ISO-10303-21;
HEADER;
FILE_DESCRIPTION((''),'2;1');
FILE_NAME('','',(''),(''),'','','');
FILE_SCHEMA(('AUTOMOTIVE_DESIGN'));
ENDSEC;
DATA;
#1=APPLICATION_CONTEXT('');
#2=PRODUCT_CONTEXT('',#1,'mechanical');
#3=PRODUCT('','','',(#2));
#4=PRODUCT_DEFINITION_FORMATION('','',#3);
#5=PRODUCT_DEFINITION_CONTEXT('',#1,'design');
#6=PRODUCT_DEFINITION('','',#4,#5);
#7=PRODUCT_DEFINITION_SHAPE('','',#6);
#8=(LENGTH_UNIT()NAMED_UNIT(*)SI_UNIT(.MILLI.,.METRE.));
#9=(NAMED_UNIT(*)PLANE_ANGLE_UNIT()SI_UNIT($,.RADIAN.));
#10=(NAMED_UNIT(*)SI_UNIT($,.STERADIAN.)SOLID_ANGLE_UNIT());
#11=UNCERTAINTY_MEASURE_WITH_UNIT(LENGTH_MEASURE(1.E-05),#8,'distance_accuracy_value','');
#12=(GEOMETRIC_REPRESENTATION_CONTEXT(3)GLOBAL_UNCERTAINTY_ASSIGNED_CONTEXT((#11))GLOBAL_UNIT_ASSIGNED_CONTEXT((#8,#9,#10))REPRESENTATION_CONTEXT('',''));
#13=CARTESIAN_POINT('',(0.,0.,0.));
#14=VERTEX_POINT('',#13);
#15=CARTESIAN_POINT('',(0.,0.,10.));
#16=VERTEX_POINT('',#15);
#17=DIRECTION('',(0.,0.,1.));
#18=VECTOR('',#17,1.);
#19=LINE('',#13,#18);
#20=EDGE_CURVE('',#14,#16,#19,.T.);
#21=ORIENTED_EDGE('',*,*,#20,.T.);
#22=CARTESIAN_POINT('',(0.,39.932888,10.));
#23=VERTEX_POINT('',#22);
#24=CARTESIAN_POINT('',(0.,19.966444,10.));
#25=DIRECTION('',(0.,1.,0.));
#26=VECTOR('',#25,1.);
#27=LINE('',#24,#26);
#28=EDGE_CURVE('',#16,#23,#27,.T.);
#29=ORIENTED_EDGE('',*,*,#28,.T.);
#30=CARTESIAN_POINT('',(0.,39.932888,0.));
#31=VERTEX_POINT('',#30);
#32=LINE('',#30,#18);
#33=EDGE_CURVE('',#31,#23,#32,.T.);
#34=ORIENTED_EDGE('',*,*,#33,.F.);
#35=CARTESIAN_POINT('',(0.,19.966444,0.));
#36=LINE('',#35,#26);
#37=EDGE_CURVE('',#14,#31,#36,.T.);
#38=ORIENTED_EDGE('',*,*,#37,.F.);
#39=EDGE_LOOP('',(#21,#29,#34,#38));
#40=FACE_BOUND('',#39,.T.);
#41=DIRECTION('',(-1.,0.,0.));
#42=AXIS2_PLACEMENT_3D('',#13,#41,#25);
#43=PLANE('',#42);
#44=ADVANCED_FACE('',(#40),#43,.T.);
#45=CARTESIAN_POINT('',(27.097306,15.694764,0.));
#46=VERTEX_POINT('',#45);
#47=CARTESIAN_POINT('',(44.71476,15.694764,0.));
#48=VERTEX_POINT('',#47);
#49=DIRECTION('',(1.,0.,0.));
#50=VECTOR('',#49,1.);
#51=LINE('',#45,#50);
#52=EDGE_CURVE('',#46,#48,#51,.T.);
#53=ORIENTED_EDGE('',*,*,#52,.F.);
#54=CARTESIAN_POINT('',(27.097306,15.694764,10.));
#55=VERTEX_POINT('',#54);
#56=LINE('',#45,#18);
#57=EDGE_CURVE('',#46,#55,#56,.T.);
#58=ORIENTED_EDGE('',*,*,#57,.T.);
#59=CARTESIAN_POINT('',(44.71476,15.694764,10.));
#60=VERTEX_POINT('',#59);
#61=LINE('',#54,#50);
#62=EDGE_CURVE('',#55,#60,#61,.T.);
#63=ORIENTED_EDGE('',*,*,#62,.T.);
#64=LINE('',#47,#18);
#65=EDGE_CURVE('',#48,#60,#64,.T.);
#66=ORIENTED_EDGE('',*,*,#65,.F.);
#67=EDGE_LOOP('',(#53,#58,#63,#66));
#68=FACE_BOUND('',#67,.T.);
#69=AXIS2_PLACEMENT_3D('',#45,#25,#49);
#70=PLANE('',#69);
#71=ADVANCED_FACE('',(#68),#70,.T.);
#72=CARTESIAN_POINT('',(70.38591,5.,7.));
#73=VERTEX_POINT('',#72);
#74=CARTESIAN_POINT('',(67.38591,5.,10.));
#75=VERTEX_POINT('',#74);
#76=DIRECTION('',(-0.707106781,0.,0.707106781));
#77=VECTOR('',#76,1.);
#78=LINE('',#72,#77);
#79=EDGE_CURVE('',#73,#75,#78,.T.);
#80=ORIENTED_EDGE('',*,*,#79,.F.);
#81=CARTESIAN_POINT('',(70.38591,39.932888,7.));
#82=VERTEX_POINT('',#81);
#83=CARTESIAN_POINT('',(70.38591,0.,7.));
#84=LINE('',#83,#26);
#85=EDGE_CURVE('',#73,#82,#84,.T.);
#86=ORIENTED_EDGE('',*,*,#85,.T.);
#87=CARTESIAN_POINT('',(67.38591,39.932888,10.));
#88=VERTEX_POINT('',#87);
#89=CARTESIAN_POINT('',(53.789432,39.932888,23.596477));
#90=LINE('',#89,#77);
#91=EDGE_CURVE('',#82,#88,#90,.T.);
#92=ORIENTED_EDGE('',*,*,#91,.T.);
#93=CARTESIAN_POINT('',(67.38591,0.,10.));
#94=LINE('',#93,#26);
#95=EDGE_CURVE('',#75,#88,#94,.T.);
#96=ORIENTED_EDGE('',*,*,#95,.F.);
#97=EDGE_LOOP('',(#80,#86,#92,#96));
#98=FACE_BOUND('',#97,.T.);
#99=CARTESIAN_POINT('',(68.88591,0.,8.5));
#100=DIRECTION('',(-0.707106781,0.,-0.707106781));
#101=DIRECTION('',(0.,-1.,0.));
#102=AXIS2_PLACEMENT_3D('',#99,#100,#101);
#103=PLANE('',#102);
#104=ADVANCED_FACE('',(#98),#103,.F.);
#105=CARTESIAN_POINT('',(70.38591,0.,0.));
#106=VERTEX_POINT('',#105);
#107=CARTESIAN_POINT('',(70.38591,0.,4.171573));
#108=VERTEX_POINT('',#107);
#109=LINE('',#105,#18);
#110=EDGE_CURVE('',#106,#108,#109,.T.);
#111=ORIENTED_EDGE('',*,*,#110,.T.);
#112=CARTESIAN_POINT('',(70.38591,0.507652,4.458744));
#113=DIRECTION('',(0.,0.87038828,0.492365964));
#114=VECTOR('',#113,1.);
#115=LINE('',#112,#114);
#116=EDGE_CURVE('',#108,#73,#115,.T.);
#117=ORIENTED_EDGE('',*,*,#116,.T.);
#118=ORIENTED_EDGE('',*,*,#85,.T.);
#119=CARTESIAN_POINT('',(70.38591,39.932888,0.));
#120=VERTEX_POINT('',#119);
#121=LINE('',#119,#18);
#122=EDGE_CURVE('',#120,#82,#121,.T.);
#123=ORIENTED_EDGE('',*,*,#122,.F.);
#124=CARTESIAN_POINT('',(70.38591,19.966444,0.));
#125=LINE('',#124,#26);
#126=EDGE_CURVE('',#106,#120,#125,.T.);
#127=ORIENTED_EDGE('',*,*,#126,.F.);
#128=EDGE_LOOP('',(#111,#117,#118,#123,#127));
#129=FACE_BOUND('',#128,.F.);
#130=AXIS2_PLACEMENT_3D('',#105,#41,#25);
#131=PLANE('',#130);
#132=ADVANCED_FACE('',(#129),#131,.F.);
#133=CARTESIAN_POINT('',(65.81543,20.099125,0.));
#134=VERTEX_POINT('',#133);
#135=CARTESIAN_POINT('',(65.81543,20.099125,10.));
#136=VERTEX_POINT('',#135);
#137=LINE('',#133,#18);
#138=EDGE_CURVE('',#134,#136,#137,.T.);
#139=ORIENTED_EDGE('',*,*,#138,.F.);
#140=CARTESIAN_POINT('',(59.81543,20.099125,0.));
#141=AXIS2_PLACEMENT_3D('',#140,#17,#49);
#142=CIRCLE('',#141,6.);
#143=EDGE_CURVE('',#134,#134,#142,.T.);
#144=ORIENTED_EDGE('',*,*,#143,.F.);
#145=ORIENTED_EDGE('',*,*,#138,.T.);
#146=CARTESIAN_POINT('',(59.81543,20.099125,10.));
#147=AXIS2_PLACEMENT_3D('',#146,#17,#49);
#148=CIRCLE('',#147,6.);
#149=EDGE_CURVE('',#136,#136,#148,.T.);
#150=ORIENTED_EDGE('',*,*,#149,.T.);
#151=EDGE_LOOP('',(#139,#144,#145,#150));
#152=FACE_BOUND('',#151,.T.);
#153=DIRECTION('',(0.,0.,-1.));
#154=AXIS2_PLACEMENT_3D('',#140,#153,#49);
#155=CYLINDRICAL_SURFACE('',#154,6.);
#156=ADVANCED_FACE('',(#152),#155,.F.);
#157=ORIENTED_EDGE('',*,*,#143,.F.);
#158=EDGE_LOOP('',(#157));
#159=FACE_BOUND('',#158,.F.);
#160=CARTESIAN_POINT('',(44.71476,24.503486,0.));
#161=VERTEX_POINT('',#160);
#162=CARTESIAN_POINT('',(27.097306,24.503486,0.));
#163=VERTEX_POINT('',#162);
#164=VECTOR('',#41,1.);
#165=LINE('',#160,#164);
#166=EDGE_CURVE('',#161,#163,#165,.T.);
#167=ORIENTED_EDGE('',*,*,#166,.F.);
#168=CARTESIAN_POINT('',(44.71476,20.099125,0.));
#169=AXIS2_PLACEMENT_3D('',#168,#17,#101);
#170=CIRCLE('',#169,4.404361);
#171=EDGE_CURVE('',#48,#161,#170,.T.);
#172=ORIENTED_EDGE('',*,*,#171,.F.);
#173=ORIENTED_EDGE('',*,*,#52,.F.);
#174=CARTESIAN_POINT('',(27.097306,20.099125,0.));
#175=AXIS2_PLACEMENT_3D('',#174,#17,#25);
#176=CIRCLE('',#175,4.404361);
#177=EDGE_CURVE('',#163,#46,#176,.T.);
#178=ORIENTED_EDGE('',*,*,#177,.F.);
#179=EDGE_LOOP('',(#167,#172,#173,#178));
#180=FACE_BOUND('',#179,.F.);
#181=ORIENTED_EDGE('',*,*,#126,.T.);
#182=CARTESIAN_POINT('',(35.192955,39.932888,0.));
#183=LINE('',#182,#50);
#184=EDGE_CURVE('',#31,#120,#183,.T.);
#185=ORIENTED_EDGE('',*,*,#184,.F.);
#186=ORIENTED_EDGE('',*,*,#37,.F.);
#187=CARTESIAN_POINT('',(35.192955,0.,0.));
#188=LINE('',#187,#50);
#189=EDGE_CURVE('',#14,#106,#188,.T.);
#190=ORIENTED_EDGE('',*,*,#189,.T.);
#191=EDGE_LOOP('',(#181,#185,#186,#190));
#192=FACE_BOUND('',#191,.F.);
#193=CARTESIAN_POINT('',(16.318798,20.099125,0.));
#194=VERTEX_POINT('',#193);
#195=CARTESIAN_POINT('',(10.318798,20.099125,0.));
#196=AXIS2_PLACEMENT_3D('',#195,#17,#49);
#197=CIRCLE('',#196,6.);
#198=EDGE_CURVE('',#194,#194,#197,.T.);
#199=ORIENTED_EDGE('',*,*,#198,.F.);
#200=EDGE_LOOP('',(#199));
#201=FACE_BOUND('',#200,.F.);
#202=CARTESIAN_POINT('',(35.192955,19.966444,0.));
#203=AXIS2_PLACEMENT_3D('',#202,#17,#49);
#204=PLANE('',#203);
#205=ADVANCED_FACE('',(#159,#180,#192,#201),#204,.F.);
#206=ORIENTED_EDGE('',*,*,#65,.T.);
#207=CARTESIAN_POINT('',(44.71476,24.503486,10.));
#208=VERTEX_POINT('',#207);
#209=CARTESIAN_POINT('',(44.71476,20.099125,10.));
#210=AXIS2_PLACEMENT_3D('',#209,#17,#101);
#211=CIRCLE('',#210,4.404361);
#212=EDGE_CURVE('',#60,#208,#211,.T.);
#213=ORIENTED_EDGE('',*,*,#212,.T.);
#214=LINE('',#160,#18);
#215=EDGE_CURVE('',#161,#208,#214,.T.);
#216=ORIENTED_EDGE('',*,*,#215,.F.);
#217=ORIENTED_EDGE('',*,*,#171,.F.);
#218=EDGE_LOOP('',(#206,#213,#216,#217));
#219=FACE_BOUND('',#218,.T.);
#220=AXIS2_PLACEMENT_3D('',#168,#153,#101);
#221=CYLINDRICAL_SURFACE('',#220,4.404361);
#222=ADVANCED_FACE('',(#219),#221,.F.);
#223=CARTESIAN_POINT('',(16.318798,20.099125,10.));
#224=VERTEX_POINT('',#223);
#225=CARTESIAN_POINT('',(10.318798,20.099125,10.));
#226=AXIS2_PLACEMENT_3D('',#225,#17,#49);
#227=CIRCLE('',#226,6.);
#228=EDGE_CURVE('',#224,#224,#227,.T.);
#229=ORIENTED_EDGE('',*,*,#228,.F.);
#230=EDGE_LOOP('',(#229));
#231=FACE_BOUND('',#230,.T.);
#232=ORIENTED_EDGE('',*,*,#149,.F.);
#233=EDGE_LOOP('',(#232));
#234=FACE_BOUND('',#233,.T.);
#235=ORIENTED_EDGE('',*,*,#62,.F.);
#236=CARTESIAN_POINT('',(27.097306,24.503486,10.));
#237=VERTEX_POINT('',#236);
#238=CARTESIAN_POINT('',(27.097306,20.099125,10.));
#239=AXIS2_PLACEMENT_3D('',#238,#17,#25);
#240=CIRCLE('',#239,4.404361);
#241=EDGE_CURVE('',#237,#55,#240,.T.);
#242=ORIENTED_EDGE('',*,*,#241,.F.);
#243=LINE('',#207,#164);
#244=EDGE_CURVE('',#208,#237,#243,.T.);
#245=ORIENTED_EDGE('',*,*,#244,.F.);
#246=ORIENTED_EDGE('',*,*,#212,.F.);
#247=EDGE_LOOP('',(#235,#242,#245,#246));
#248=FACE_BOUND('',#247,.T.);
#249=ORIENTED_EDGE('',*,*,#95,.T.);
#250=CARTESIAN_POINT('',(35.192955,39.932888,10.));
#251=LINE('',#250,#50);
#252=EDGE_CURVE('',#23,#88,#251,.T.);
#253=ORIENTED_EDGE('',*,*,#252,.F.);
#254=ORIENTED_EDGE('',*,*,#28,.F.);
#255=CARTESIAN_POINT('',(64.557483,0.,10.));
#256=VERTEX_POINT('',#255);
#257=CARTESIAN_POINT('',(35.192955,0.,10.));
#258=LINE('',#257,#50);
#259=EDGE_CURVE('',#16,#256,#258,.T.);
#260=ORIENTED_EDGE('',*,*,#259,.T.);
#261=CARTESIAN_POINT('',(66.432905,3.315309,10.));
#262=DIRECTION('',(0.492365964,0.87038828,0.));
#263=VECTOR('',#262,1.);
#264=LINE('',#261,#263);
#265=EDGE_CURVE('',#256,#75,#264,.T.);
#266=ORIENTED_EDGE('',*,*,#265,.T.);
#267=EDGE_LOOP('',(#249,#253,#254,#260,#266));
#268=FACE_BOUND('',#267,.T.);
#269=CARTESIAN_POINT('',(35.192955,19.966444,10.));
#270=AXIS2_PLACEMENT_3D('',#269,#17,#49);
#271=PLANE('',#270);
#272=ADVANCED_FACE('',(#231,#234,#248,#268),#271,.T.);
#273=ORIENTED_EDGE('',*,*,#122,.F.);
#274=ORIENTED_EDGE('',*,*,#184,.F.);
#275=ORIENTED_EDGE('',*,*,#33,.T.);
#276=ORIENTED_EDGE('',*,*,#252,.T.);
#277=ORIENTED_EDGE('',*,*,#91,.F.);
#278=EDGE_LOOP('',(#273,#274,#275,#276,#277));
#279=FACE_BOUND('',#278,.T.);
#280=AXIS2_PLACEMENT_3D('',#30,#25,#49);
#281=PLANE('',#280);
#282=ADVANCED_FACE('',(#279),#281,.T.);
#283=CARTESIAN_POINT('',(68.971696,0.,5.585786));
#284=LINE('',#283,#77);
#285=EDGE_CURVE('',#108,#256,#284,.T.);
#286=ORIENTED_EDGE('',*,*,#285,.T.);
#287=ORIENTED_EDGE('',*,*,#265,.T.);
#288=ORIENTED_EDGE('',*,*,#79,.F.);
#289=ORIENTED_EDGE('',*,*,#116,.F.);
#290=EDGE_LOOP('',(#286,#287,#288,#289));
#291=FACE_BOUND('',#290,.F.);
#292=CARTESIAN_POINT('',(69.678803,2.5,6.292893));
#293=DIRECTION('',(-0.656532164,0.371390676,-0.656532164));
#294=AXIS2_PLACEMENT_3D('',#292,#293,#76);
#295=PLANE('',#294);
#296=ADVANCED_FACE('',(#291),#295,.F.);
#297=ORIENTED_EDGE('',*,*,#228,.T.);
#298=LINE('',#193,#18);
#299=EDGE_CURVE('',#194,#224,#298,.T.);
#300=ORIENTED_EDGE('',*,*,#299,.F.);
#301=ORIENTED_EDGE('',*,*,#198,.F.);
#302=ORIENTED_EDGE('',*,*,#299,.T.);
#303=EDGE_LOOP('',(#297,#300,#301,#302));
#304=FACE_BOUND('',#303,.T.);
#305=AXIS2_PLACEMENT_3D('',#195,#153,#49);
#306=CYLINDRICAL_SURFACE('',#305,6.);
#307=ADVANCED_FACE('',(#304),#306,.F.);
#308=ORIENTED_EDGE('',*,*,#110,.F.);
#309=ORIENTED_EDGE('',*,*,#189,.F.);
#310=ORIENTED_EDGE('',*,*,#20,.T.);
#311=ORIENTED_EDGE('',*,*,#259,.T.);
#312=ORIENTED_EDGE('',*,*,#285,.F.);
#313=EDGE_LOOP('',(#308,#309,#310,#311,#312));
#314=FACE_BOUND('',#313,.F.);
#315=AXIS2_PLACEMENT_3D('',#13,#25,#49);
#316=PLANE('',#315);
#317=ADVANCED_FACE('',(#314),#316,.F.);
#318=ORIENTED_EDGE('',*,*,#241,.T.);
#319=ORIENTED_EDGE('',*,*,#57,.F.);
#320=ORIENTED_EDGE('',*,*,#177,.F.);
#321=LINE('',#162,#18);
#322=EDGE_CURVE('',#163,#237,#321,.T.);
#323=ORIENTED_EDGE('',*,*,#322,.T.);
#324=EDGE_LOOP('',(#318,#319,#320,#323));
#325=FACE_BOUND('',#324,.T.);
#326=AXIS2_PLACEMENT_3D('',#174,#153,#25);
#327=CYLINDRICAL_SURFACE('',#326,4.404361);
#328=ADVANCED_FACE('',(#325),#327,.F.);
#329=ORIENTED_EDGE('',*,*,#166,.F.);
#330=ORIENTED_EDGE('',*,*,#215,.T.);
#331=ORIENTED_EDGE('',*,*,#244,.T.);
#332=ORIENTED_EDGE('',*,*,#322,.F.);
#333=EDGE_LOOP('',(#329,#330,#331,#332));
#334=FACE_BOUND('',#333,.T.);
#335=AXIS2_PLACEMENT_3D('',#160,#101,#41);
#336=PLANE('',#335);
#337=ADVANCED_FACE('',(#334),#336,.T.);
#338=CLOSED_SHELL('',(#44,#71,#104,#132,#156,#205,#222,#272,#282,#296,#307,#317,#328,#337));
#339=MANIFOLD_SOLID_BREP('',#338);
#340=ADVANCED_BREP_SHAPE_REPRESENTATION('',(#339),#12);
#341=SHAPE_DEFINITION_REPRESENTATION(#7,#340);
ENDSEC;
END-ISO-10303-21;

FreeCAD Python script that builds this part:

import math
import FreeCAD as App
import Part
import Sketcher
Q = App.Units.Quantity


def edges_at(feature, points):
    """Names of the edges that pass closest to the given points."""
    edges = feature.Shape.Edges
    near = lambda p: min(range(len(edges)), key=lambda i: edges[i].distToShape(Part.Vertex(*p))[0])
    return sorted({f"Edge{near(p) + 1}" for p in points})


def add_polygon(sketch, points):
    """Adds a closed chain of lines whose ends are joined by coincident constraints."""
    first, n = sketch.GeometryCount, len(points)
    for a, b in zip(points, points[1:] + points[:1]):
        sketch.addGeometry(Part.LineSegment(App.Vector(*a, 0), App.Vector(*b, 0)), False)
    for i in range(n):
        sketch.addConstraint(Sketcher.Constraint("Coincident", first + i, 2, first + (i + 1) % n, 1))

doc = App.newDocument("Part")
body = doc.addObject("PartDesign::Body", "Body")

# Sketch on XY plane
sketch1 = body.newObject("Sketcher::SketchObject", "Sketch")
sketch1.AttachmentSupport = (doc.getObject("XY_Plane"), [""])
sketch1.MapMode = "FlatFace"
add_polygon(sketch1, [(0, 39.932888), (0, 0), (70.38591, 0), (70.38591, 39.932888)])  # lines 0-3
sketch1.addGeometry(Part.ArcOfCircle(Part.Circle(App.Vector(27.097306, 20.099125, 0), App.Vector(0, 0, 1), 4.404361), math.radians(90), math.radians(270)), False)  # 4
sketch1.addGeometry(Part.LineSegment(App.Vector(27.097306, 24.503486, 0), App.Vector(44.71476, 24.503486, 0)), False)  # 5
sketch1.addGeometry(Part.ArcOfCircle(Part.Circle(App.Vector(44.71476, 20.099125, 0), App.Vector(0, 0, 1), 4.404361), math.radians(-90), math.radians(90)), False)  # 6
sketch1.addGeometry(Part.LineSegment(App.Vector(44.71476, 15.694764, 0), App.Vector(27.097306, 15.694764, 0)), False)  # 7
sketch1.addGeometry(Part.Circle(App.Vector(10.318798, 20.099125, 0), App.Vector(0, 0, 1), 6), False)  # 8
sketch1.addGeometry(Part.Circle(App.Vector(59.81543, 20.099125, 0), App.Vector(0, 0, 1), 6), False)  # 9
sketch1.addConstraint([
    Sketcher.Constraint("Tangent", 4, 1, 5, 1),
    Sketcher.Constraint("Tangent", 5, 2, 6, 2),
    Sketcher.Constraint("Tangent", 6, 1, 7, 1),
    Sketcher.Constraint("Tangent", 7, 2, 4, 2),
    Sketcher.Constraint("Vertical", 0),
    Sketcher.Constraint("Horizontal", 1),
    Sketcher.Constraint("Vertical", 2),
    Sketcher.Constraint("Horizontal", 3),
    Sketcher.Constraint("Horizontal", 5),
    Sketcher.Constraint("Horizontal", 7),
    Sketcher.Constraint("Coincident", 0, 2, -1, 1),
    Sketcher.Constraint("Equal", 8, 9),
    Sketcher.Constraint("Horizontal", 6, 3, 8, 3),
    Sketcher.Constraint("Horizontal", 8, 3, 9, 3),
    Sketcher.Constraint("Diameter", 8, Q("12 mm")),
    Sketcher.Constraint("Radius", 4, Q("4.404361 mm")),
    Sketcher.Constraint("DistanceX", 1, 1, 1, 2, Q("70.38591 mm")),
    Sketcher.Constraint("DistanceY", 4, 1, 3, 2, Q("15.429402 mm")),
    Sketcher.Constraint("DistanceX", 5, 1, 5, 2, Q("17.617454 mm")),
    Sketcher.Constraint("DistanceY", 0, 2, 0, 1, Q("39.932888 mm")),
    Sketcher.Constraint("DistanceX", -1, 1, 6, 3, Q("44.71476 mm")),
    Sketcher.Constraint("DistanceX", -1, 1, 9, 3, Q("59.81543 mm")),
    Sketcher.Constraint("DistanceX", 8, 3, 4, 3, Q("16.778508 mm")),
])
pad1 = body.newObject("PartDesign::Pad", "Pad")
pad1.Profile = sketch1
pad1.Length = 10
doc.recompute()

chamfer = body.newObject("PartDesign::Chamfer", "Chamfer")
chamfer.Base = (pad1, edges_at(pad1, [(70.386, 19.966, 10)]))
chamfer.Size = 3
doc.recompute()

chamfer2 = body.newObject("PartDesign::Chamfer", "Chamfer001")
chamfer2.Base = (chamfer, edges_at(chamfer, [(68.886, 0, 8.5)]))
chamfer2.ChamferType = "Two distances"
chamfer2.Size = 2
chamfer2.Size2 = 5

doc.recompute()
